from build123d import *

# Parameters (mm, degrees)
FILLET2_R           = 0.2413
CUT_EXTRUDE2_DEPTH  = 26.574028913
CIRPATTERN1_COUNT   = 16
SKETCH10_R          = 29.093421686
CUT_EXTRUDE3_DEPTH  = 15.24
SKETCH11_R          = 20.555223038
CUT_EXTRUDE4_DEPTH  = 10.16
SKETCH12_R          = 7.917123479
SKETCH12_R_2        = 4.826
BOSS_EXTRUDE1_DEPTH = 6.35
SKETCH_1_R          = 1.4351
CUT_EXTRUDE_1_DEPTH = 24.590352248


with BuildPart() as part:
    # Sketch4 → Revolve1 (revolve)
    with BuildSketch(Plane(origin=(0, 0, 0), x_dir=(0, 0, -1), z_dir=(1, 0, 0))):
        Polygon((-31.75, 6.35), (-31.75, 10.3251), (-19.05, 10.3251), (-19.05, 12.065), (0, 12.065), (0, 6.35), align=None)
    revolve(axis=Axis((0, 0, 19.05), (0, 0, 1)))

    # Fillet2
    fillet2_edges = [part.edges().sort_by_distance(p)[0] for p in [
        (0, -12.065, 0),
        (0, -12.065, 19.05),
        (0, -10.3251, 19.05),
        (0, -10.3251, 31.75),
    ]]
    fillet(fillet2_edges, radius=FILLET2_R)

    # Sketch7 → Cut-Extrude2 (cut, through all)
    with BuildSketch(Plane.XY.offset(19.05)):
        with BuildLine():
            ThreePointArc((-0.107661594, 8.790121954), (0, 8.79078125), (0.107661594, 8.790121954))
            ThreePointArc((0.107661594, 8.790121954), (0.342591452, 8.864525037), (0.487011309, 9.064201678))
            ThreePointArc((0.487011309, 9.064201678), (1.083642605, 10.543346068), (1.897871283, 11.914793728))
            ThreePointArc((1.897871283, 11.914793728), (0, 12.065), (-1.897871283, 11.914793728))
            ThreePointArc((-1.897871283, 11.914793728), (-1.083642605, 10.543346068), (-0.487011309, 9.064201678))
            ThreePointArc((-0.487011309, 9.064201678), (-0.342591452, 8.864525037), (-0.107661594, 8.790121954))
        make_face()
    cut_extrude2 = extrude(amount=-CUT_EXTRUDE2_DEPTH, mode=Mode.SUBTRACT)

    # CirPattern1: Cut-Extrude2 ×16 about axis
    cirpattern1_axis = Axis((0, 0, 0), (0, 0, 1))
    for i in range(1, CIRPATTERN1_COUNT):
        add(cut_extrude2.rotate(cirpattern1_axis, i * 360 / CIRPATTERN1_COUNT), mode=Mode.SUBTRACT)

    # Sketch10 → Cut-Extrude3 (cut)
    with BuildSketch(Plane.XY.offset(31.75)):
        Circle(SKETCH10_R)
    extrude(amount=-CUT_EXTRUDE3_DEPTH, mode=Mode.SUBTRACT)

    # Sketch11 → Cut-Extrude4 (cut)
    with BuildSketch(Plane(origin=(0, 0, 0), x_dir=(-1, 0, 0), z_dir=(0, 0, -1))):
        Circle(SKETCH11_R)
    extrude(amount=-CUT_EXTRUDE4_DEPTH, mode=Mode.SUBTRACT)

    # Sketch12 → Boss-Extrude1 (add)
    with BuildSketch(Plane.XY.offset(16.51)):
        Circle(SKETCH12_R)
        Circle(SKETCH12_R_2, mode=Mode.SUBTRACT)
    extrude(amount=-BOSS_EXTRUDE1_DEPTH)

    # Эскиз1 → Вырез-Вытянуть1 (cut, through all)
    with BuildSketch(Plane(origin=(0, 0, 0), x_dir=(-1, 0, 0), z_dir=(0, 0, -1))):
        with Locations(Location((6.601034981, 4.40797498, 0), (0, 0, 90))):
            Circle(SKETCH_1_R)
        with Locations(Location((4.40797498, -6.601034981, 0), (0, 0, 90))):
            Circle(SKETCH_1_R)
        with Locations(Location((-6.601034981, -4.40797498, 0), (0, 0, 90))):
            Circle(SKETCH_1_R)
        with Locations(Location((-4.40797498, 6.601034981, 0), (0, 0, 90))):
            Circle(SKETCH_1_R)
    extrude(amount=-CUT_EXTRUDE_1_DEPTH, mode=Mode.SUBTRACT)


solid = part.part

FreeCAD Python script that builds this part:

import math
import FreeCAD as App
import Part
import Sketcher
Q = App.Units.Quantity


def edges_at(feature, points):
    """Names of the edges that pass closest to the given points."""
    edges = feature.Shape.Edges
    near = lambda p: min(range(len(edges)), key=lambda i: edges[i].distToShape(Part.Vertex(*p))[0])
    return sorted({f"Edge{near(p) + 1}" for p in points})


def add_polygon(sketch, points):
    """Adds a closed chain of lines whose ends are joined by coincident constraints."""
    first, n = sketch.GeometryCount, len(points)
    for a, b in zip(points, points[1:] + points[:1]):
        sketch.addGeometry(Part.LineSegment(App.Vector(*a, 0), App.Vector(*b, 0)), False)
    for i in range(n):
        sketch.addConstraint(Sketcher.Constraint("Coincident", first + i, 2, first + (i + 1) % n, 1))

doc = App.newDocument("Part")
body = doc.addObject("PartDesign::Body", "Body")

sketch1 = body.newObject("Sketcher::SketchObject", "Sketch")
sketch1.AttachmentSupport = (doc.getObject("YZ_Plane"), [""])
sketch1.MapMode = "FlatFace"
add_polygon(sketch1, [(10.3, 31.8), (6.3, 31.8), (6.3, 0), (12.1, 0), (12.1, 19.1), (10.3, 19.1)])
sketch1.addConstraint([
    Sketcher.Constraint("Horizontal", 0),
    Sketcher.Constraint("Vertical", 1),
    Sketcher.Constraint("Horizontal", 2),
    Sketcher.Constraint("Vertical", 3),
    Sketcher.Constraint("Horizontal", 4),
    Sketcher.Constraint("Vertical", 5),
    Sketcher.Constraint("PointOnObject", 1, 2, -1),
    Sketcher.Constraint("DistanceY", 5, 1, 5, 2, Q("0.5 in")),
    Sketcher.Constraint("DistanceY", 1, 2, 1, 1, Q("1.25 in")),
    Sketcher.Constraint("DistanceX", 2, 1, 2, 2, Q("0.225 in")),
    Sketcher.Constraint("DistanceX", -1, 1, 0, 2, Q("0.25 in")),
    Sketcher.Constraint("DistanceX", 0, 2, 0, 1, Q("0.1565 in")),
])
revolution = body.newObject("PartDesign::Revolution", "Revolution")
revolution.Profile = sketch1
revolution.ReferenceAxis = (sketch1, ["V_Axis"])
revolution.Angle = 360
doc.recompute()

fillet = body.newObject("PartDesign::Fillet", "Fillet")
fillet.Base = (revolution, edges_at(revolution, [
    (0, -12.065, 0),
    (0, -12.065, 19.05),
    (0, -10.325, 19.05),
    (0, -10.325, 31.75),
]))
fillet.Radius = Q("0.0095 in")

sketch2 = body.newObject("Sketcher::SketchObject", "Sketch001")
sketch2.AttachmentSupport = (doc.getObject("XY_Plane"), [""])
sketch2.MapMode = "FlatFace"
sketch2.AttachmentOffset = App.Placement(App.Vector(0, 0, 0.75 * 25.4), App.Rotation())
sketch2.addGeometry([
    Part.ArcOfCircle(Part.Circle(App.Vector(0, 0, 0), App.Vector(0, 0, 1), 8.79), math.radians(89.3), math.radians(90.7)),
    Part.ArcOfCircle(Part.Circle(App.Vector(0.11, 9.18, 0), App.Vector(0, 0, 1), 0.39), math.radians(-91), math.radians(-18)),
    Part.ArcOfCircle(Part.Circle(App.Vector(10.47, 5.9, 0), App.Vector(0, 0, 1), 10.48), math.radians(144.94), math.radians(162.4)),
    Part.ArcOfCircle(Part.Circle(App.Vector(0, 0, 0), App.Vector(0, 0, 1), 12.06), math.radians(80.95), math.radians(99.05)),
    Part.ArcOfCircle(Part.Circle(App.Vector(-10.47, 5.9, 0), App.Vector(0, 0, 1), 10.48), math.radians(17.6), math.radians(35.06)),
    Part.ArcOfCircle(Part.Circle(App.Vector(-0.11, 9.18, 0), App.Vector(0, 0, 1), 0.39), math.radians(-162), math.radians(-89)),
], False)
sketch2.addConstraint([
    Sketcher.Constraint("Tangent", 0, 1, 1, 1),
    Sketcher.Constraint("Tangent", 1, 2, 2, 2),
    Sketcher.Constraint("Coincident", 2, 1, 3, 1),
    Sketcher.Constraint("Coincident", 3, 2, 4, 2),
    Sketcher.Constraint("Tangent", 4, 1, 5, 1),
    Sketcher.Constraint("Tangent", 5, 2, 0, 2),
    Sketcher.Constraint("Coincident", 0, 3, -1, 1),
    Sketcher.Constraint("Coincident", 3, 3, -1, 1),
    Sketcher.Constraint("Equal", 2, 4),
    Sketcher.Constraint("Equal", 1, 5),
    Sketcher.Constraint("Symmetric", 2, 3, 4, 3, -2),
    Sketcher.Constraint("Radius", 3, Q("0.475 in")),
    Sketcher.Constraint("Radius", 2, Q("0.4125 in")),
    Sketcher.Constraint("Radius", 0, Q("8.790781 mm")),
    Sketcher.Constraint("Radius", 1, Q("0.392935 mm")),
    Sketcher.Constraint("DistanceY", -1, 1, 1, 2, Q("9.064202 mm")),
    Sketcher.Constraint("DistanceX", -1, 1, 2, 3, Q("10.473948 mm")),
])
pocket1 = body.newObject("PartDesign::Pocket", "Pocket")
pocket1.Profile = sketch2
pocket1.Type = "ThroughAll"
doc.recompute()

polarpattern = body.newObject("PartDesign::PolarPattern", "PolarPattern")
polarpattern.Originals = [pocket1]
polarpattern.Axis = (doc.getObject("Z_Axis"), [""])
polarpattern.Angle = 360
polarpattern.Occurrences = 16
body.Tip = polarpattern

sketch3 = body.newObject("Sketcher::SketchObject", "Sketch002")
sketch3.AttachmentSupport = (doc.getObject("XY_Plane"), [""])
sketch3.MapMode = "FlatFace"
sketch3.AttachmentOffset = App.Placement(App.Vector(0, 0, 1.25 * 25.4), App.Rotation())
sketch3.addGeometry(Part.Circle(App.Vector(0, 0, 0), App.Vector(0, 0, 1), 29), False)
sketch3.addConstraint([
    Sketcher.Constraint("Coincident", 0, 3, -1, 1),
    Sketcher.Constraint("Diameter", 0, Q("58.186843 mm")),
])
pocket2 = body.newObject("PartDesign::Pocket", "Pocket001")
pocket2.Profile = sketch3
pocket2.Length = Q("0.6 in")

sketch4 = body.newObject("Sketcher::SketchObject", "Sketch003")
sketch4.AttachmentSupport = (doc.getObject("XY_Plane"), [""])
sketch4.MapMode = "FlatFace"
sketch4.addGeometry(Part.Circle(App.Vector(0, 0, 0), App.Vector(0, 0, 1), 21), False)
sketch4.addConstraint([
    Sketcher.Constraint("Coincident", 0, 3, -1, 1),
    Sketcher.Constraint("Diameter", 0, Q("41.110446 mm")),
])
pocket3 = body.newObject("PartDesign::Pocket", "Pocket002")
pocket3.Profile = sketch4
pocket3.Length = Q("0.4 in")
pocket3.Reversed = True

sketch5 = body.newObject("Sketcher::SketchObject", "Sketch004")
sketch5.AttachmentSupport = (doc.getObject("XY_Plane"), [""])
sketch5.MapMode = "FlatFace"
sketch5.AttachmentOffset = App.Placement(App.Vector(0, 0, 0.65 * 25.4), App.Rotation())
sketch5.addGeometry([
    Part.Circle(App.Vector(0, 0, 0), App.Vector(0, 0, 1), 7.9),
    Part.Circle(App.Vector(0, 0, 0), App.Vector(0, 0, 1), 4.8),
], False)
sketch5.addConstraint([
    Sketcher.Constraint("Coincident", 0, 3, -1, 1),
    Sketcher.Constraint("Coincident", 1, 3, -1, 1),
    Sketcher.Constraint("Diameter", 1, Q("0.38 in")),
    Sketcher.Constraint("Diameter", 0, Q("15.834247 mm")),
])
pad1 = body.newObject("PartDesign::Pad", "Pad")
pad1.Profile = sketch5
pad1.Length = Q("0.25 in")
pad1.Reversed = True

sketch6 = body.newObject("Sketcher::SketchObject", "Sketch005")
sketch6.AttachmentSupport = (doc.getObject("XY_Plane"), [""])
sketch6.MapMode = "FlatFace"
sketch6.addGeometry([
    Part.Circle(App.Vector(-6.6, 4.4, 0), App.Vector(0, 0, 1), 1.4),
    Part.Circle(App.Vector(-4.4, -6.6, 0), App.Vector(0, 0, 1), 1.4),
    Part.Circle(App.Vector(6.6, -4.4, 0), App.Vector(0, 0, 1), 1.4),
    Part.Circle(App.Vector(4.4, 6.6, 0), App.Vector(0, 0, 1), 1.4),
], False)
sketch6.addConstraint([
    Sketcher.Constraint("Equal", 0, 1),
    Sketcher.Constraint("Equal", 1, 2),
    Sketcher.Constraint("Equal", 2, 3),
    Sketcher.Constraint("Symmetric", 0, 3, 2, 3, -1, 1),
    Sketcher.Constraint("Symmetric", 1, 3, 3, 3, -1, 1),
    Sketcher.Constraint("Diameter", 0, Q("0.113 in")),
    Sketcher.Constraint("DistanceX", 0, 3, 1, 3, Q("2.19306 mm")),
    Sketcher.Constraint("DistanceY", 1, 3, 0, 3, Q("11.00901 mm")),
    Sketcher.Constraint("DistanceX", 1, 3, 2, 3, Q("11.00901 mm")),
    Sketcher.Constraint("DistanceY", 1, 3, 2, 3, Q("2.19306 mm")),
])
pocket4 = body.newObject("PartDesign::Pocket", "Pocket003")
pocket4.Profile = sketch6
pocket4.Type = "ThroughAll"
pocket4.Reversed = True

doc.recompute()
